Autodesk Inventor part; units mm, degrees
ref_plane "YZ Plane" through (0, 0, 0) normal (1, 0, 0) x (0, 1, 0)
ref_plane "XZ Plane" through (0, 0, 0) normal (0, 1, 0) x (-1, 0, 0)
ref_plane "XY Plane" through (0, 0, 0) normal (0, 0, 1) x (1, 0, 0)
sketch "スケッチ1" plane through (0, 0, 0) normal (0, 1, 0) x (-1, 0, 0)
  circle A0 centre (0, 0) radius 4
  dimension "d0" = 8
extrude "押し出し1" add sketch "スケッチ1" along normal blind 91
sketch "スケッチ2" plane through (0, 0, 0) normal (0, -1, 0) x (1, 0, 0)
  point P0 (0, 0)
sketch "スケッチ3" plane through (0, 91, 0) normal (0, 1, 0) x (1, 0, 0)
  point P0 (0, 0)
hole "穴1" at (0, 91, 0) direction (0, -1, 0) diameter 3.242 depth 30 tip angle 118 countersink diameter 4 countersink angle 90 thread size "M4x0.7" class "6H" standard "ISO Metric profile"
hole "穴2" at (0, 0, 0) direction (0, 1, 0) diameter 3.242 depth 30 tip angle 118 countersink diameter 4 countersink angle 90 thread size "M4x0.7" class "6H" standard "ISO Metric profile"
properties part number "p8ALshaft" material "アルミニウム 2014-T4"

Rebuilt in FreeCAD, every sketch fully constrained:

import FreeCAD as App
import Part
import Sketcher
Q = App.Units.Quantity

doc = App.newDocument("Part")
body = doc.addObject("PartDesign::Body", "Body")

# Sketch on XZ plane
sketch1 = body.newObject("Sketcher::SketchObject", "Sketch")
sketch1.AttachmentSupport = (doc.getObject("XZ_Plane"), [""])
sketch1.MapMode = "FlatFace"
sketch1.addGeometry(Part.Circle(App.Vector(0, 0, 0), App.Vector(0, 0, 1), 4), False)
sketch1.addConstraint(Sketcher.Constraint("Coincident", 0, 3, -1, 1))
sketch1.addConstraint(Sketcher.Constraint("Diameter", 0, Q("8 mm")))
pad1 = body.newObject("PartDesign::Pad", "Pad")
pad1.Profile = sketch1
pad1.Length = 91
pad1.Reversed = True

# Sketch on XZ plane
sketch2 = body.newObject("Sketcher::SketchObject", "Sketch001")
sketch2.AttachmentSupport = (doc.getObject("XZ_Plane"), [""])
sketch2.MapMode = "FlatFace"
sketch2.AttachmentOffset = App.Placement(App.Vector(0, 0, -91), App.Rotation())
sketch2.addGeometry(Part.Circle(App.Vector(0, 0, 0), App.Vector(0, 0, 1), 1.6), False)
sketch2.addConstraint(Sketcher.Constraint("Coincident", 0, 3, -1, 1))
sketch2.addConstraint(Sketcher.Constraint("Diameter", 0, Q("3.242 mm")))
doc.recompute()
hole = body.newObject("PartDesign::Hole", "Hole")
hole.Profile = sketch2
hole.ThreadType = "None"
hole.Diameter = 3.242
hole.DepthType = "Dimension"
hole.Depth = 30
hole.DrillPoint = "Angled"
hole.DrillPointAngle = 118
hole.HoleCutType = "Countersink"
hole.HoleCutDiameter = 4
hole.HoleCutCountersinkAngle = 90
hole.Reversed = True

# Sketch on XZ plane
sketch3 = body.newObject("Sketcher::SketchObject", "Sketch002")
sketch3.AttachmentSupport = (doc.getObject("XZ_Plane"), [""])
sketch3.MapMode = "FlatFace"
sketch3.addGeometry(Part.Circle(App.Vector(0, 0, 0), App.Vector(0, 0, 1), 1.6), False)
sketch3.addConstraint(Sketcher.Constraint("Coincident", 0, 3, -1, 1))
sketch3.addConstraint(Sketcher.Constraint("Diameter", 0, Q("3.242 mm")))
doc.recompute()
hole2 = body.newObject("PartDesign::Hole", "Hole001")
hole2.Profile = sketch3
hole2.ThreadType = "None"
hole2.Diameter = 3.242
hole2.DepthType = "Dimension"
hole2.Depth = 30
hole2.DrillPoint = "Angled"
hole2.DrillPointAngle = 118
hole2.HoleCutType = "Countersink"
hole2.HoleCutDiameter = 4
hole2.HoleCutCountersinkAngle = 90

doc.recompute()
